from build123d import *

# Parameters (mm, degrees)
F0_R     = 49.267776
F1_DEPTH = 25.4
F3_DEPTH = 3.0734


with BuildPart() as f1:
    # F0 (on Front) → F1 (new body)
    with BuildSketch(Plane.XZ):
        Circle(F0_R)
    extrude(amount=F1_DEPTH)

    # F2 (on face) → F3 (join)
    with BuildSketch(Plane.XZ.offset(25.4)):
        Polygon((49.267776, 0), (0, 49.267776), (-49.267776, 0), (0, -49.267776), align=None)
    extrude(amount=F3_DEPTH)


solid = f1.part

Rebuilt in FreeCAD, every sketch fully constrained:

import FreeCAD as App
import Part
import Sketcher

V = App.Vector
Q = App.Units.Quantity


def add_polygon(sketch, points):
    """Adds a closed chain of lines whose ends are joined by coincident constraints."""
    first, n = sketch.GeometryCount, len(points)
    for a, b in zip(points, points[1:] + points[:1]):
        sketch.addGeometry(Part.LineSegment(App.Vector(*a, 0), App.Vector(*b, 0)), False)
    for i in range(n):
        sketch.addConstraint(Sketcher.Constraint("Coincident", first + i, 2, first + (i + 1) % n, 1))

doc = App.newDocument("Part")
body = doc.addObject("PartDesign::Body", "Body")

sketch1 = body.newObject("Sketcher::SketchObject", "Sketch")
sketch1.AttachmentSupport = (doc.getObject("XZ_Plane"), [""])
sketch1.MapMode = "FlatFace"
sketch1.addGeometry(Part.Circle(V(0, 0, 0), V(0, 0, 1), 49.267776), False)
sketch1.addConstraint([
    Sketcher.Constraint("Coincident", 0, 3, -1, 1),
    Sketcher.Constraint("Diameter", 0, 98.535552),
])
pad1 = body.newObject("PartDesign::Pad", "Pad")
pad1.Profile = sketch1
pad1.Length = Q("1 in")

sketch2 = body.newObject("Sketcher::SketchObject", "Sketch001")
sketch2.AttachmentSupport = (doc.getObject("XZ_Plane"), [""])
sketch2.MapMode = "FlatFace"
sketch2.AttachmentOffset = App.Placement(V(0, 0, 1 * 25.4), App.Rotation())
add_polygon(sketch2, [(49.267776, 0), (0, 49.267776), (-49.267776, 0), (0, -49.267776)])
sketch2.addConstraint([
    Sketcher.Constraint("Symmetric", 0, 2, 2, 2, -1, 1),
    Sketcher.Constraint("Symmetric", 1, 2, 3, 2, -1, 1),
    Sketcher.Constraint("PointOnObject", 0, 2, -2),
    Sketcher.Constraint("PointOnObject", 1, 2, -1),
    Sketcher.Constraint("Perpendicular", 0, 1),
    Sketcher.Constraint("DistanceY", 2, 2, 0, 2, 98.535552),
])
pad2 = body.newObject("PartDesign::Pad", "Pad001")
pad2.Profile = sketch2
pad2.Length = Q("0.121 in")

doc.recompute()
